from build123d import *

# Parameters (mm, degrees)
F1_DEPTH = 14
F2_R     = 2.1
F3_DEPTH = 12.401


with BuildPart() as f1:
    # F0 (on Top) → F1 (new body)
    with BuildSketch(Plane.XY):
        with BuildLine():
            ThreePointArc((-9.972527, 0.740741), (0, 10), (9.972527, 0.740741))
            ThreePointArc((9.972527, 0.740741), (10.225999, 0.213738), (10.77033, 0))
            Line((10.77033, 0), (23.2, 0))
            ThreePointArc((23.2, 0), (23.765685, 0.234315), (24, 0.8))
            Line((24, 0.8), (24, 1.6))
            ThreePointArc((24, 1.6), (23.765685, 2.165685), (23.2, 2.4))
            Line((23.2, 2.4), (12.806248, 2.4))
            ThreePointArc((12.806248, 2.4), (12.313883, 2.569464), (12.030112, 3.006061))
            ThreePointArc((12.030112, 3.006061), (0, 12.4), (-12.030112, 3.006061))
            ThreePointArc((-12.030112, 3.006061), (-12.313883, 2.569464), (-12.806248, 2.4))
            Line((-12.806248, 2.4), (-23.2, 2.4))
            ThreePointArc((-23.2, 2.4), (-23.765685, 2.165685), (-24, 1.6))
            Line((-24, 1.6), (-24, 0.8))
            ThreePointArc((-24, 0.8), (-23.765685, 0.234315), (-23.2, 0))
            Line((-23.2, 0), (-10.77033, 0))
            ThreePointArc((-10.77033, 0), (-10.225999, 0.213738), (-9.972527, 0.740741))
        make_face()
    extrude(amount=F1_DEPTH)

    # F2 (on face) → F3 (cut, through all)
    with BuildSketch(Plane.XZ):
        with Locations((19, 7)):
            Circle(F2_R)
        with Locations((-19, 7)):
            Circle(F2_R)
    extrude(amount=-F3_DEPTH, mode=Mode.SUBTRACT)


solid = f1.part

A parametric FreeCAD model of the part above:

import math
import FreeCAD as App
import Part
import Sketcher
Q = App.Units.Quantity

doc = App.newDocument("Part")
params = doc.addObject("Spreadsheet::Sheet", "Params")
for row, (alias, value) in enumerate([
    ("sketch1_radius", "10 mm"),
    ("sketch1_radius2", "0.800001 mm"),
    ("sketch1_radius3", "12.4 mm"),
    ("sketch1_height", "0.8 mm"),
    ("pad1_length", "14 mm"),
    ("sketch2_diameter", "4.2 mm"),
], start=1):
    params.set(f"A{row}", alias)
    params.set(f"B{row}", "=" + value)
    params.setAlias(f"B{row}", alias)

body = doc.addObject("PartDesign::Body", "Body")

# Sketch on XY plane
sketch1 = body.newObject("Sketcher::SketchObject", "Sketch")
sketch1.AttachmentSupport = (doc.getObject("XY_Plane"), [""])
sketch1.MapMode = "FlatFace"
sketch1.addGeometry([
    Part.ArcOfCircle(Part.Circle(App.Vector(0, 0, 0), App.Vector(0, 0, 1), 10), math.radians(4.248022), math.radians(175.751978)),  # 0
    Part.ArcOfCircle(Part.Circle(App.Vector(10.770332, 0.800003, 0), App.Vector(0, 0, 1), 0.800003), math.radians(-175.751826), math.radians(-90.000113)),  # 1
    Part.LineSegment(App.Vector(10.77033, 0, 0), App.Vector(23.2, 0, 0)),  # 2
    Part.ArcOfCircle(Part.Circle(App.Vector(23.199999, 0.800001, 0), App.Vector(0, 0, 1), 0.800001), math.radians(-89.999896), math.radians(-0.000104)),  # 3
    Part.LineSegment(App.Vector(24, 0.8, 0), App.Vector(24, 1.6, 0)),  # 4
    Part.ArcOfCircle(Part.Circle(App.Vector(23.199999, 1.599999, 0), App.Vector(0, 0, 1), 0.800001), math.radians(0.000104), math.radians(89.999896)),  # 5
    Part.LineSegment(App.Vector(23.2, 2.4, 0), App.Vector(12.806248, 2.4, 0)),  # 6
    Part.ArcOfCircle(Part.Circle(App.Vector(12.80625, 3.200002, 0), App.Vector(0, 0, 1), 0.800002), math.radians(-165.970273), math.radians(-90.000117)),  # 7
    Part.ArcOfCircle(Part.Circle(App.Vector(0, 0, 0), App.Vector(0, 0, 1), 12.4), math.radians(14.029667), math.radians(165.970333)),  # 8
    Part.ArcOfCircle(Part.Circle(App.Vector(-12.80625, 3.200002, 0), App.Vector(0, 0, 1), 0.800002), math.radians(-89.999883), math.radians(-14.029727)),  # 9
    Part.LineSegment(App.Vector(-12.806248, 2.4, 0), App.Vector(-23.2, 2.4, 0)),  # 10
    Part.ArcOfCircle(Part.Circle(App.Vector(-23.199999, 1.599999, 0), App.Vector(0, 0, 1), 0.800001), math.radians(90.000104), math.radians(179.999896)),  # 11
    Part.LineSegment(App.Vector(-24, 1.6, 0), App.Vector(-24, 0.8, 0)),  # 12
    Part.ArcOfCircle(Part.Circle(App.Vector(-23.199999, 0.800001, 0), App.Vector(0, 0, 1), 0.800001), math.radians(-179.999896), math.radians(-90.000104)),  # 13
    Part.LineSegment(App.Vector(-23.2, 0, 0), App.Vector(-10.77033, 0, 0)),  # 14
    Part.ArcOfCircle(Part.Circle(App.Vector(-10.770332, 0.800003, 0), App.Vector(0, 0, 1), 0.800003), math.radians(-89.999887), math.radians(-4.248174)),  # 15
], False)
sketch1.addConstraint([
    Sketcher.Constraint("Coincident", 0, 1, 1, 1),
    Sketcher.Constraint("Tangent", 1, 2, 2, 1),
    Sketcher.Constraint("Tangent", 2, 2, 3, 1),
    Sketcher.Constraint("Tangent", 3, 2, 4, 1),
    Sketcher.Constraint("Tangent", 4, 2, 5, 1),
    Sketcher.Constraint("Tangent", 5, 2, 6, 1),
    Sketcher.Constraint("Coincident", 6, 2, 7, 2),
    Sketcher.Constraint("Tangent", 7, 1, 8, 1),
    Sketcher.Constraint("Tangent", 8, 2, 9, 2),
    Sketcher.Constraint("Coincident", 9, 1, 10, 1),
    Sketcher.Constraint("Tangent", 10, 2, 11, 1),
    Sketcher.Constraint("Tangent", 11, 2, 12, 1),
    Sketcher.Constraint("Tangent", 12, 2, 13, 1),
    Sketcher.Constraint("Tangent", 13, 2, 14, 1),
    Sketcher.Constraint("Tangent", 14, 2, 15, 1),
    Sketcher.Constraint("Coincident", 15, 2, 0, 2),
    Sketcher.Constraint("Horizontal", 2),
    Sketcher.Constraint("Vertical", 4),
    Sketcher.Constraint("Horizontal", 6),
    Sketcher.Constraint("Horizontal", 10),
    Sketcher.Constraint("Vertical", 12),
    Sketcher.Constraint("Horizontal", 14),
    Sketcher.Constraint("Coincident", 0, 3, -1, 1),
    Sketcher.Constraint("Coincident", 8, 3, -1, 1),
    Sketcher.Constraint("Equal", 1, 3),
    Sketcher.Constraint("Equal", 3, 5),
    Sketcher.Constraint("Equal", 5, 7),
    Sketcher.Constraint("Equal", 7, 9),
    Sketcher.Constraint("Equal", 9, 11),
    Sketcher.Constraint("Equal", 11, 13),
    Sketcher.Constraint("Equal", 13, 15),
    Sketcher.Constraint("Symmetric", 2, 2, 13, 2, -1, 1),
    Sketcher.Constraint("Symmetric", 6, 2, 9, 1, -2),
    Sketcher.Constraint("PointOnObject", 1, 2, -1),
    Sketcher.Constraint("Horizontal", 0, 1, 15, 2),
    Sketcher.Constraint("Vertical", 7, 3, 6, 2),
    Sketcher.Constraint("Radius", 0, Q("10 mm")),
    Sketcher.Constraint("Radius", 3, Q("0.800001 mm")),
    Sketcher.Constraint("Radius", 8, Q("12.4 mm")),
    Sketcher.Constraint("DistanceY", 4, 1, 4, 2, Q("0.8 mm")),
    Sketcher.Constraint("DistanceX", -1, 1, 3, 2, Q("24 mm")),
    Sketcher.Constraint("DistanceY", -1, 1, 0, 1, Q("0.740741 mm")),
])
sketch1.setExpression("Constraints[36]", "Params.sketch1_radius")
sketch1.setExpression("Constraints[37]", "Params.sketch1_radius2")
sketch1.setExpression("Constraints[38]", "Params.sketch1_radius3")
sketch1.setExpression("Constraints[39]", "Params.sketch1_height")
pad1 = body.newObject("PartDesign::Pad", "Pad")
pad1.Profile = sketch1
pad1.setExpression("Length", "Params.pad1_length")

# Sketch on XZ plane
sketch2 = body.newObject("Sketcher::SketchObject", "Sketch001")
sketch2.AttachmentSupport = (doc.getObject("XZ_Plane"), [""])
sketch2.MapMode = "FlatFace"
sketch2.addGeometry([
    Part.Circle(App.Vector(19, 7, 0), App.Vector(0, 0, 1), 2.1),
    Part.Circle(App.Vector(-19, 7, 0), App.Vector(0, 0, 1), 2.1),
], False)
sketch2.addConstraint([
    Sketcher.Constraint("Equal", 0, 1),
    Sketcher.Constraint("Symmetric", 0, 3, 1, 3, -2),
    Sketcher.Constraint("Diameter", 0, Q("4.2 mm")),
    Sketcher.Constraint("DistanceX", -1, 1, 0, 3, Q("19 mm")),
    Sketcher.Constraint("DistanceY", -1, 1, 0, 3, Q("7 mm")),
])
sketch2.setExpression("Constraints[2]", "Params.sketch2_diameter")
pocket1 = body.newObject("PartDesign::Pocket", "Pocket")
pocket1.Profile = sketch2
pocket1.Type = "ThroughAll"

doc.recompute()
